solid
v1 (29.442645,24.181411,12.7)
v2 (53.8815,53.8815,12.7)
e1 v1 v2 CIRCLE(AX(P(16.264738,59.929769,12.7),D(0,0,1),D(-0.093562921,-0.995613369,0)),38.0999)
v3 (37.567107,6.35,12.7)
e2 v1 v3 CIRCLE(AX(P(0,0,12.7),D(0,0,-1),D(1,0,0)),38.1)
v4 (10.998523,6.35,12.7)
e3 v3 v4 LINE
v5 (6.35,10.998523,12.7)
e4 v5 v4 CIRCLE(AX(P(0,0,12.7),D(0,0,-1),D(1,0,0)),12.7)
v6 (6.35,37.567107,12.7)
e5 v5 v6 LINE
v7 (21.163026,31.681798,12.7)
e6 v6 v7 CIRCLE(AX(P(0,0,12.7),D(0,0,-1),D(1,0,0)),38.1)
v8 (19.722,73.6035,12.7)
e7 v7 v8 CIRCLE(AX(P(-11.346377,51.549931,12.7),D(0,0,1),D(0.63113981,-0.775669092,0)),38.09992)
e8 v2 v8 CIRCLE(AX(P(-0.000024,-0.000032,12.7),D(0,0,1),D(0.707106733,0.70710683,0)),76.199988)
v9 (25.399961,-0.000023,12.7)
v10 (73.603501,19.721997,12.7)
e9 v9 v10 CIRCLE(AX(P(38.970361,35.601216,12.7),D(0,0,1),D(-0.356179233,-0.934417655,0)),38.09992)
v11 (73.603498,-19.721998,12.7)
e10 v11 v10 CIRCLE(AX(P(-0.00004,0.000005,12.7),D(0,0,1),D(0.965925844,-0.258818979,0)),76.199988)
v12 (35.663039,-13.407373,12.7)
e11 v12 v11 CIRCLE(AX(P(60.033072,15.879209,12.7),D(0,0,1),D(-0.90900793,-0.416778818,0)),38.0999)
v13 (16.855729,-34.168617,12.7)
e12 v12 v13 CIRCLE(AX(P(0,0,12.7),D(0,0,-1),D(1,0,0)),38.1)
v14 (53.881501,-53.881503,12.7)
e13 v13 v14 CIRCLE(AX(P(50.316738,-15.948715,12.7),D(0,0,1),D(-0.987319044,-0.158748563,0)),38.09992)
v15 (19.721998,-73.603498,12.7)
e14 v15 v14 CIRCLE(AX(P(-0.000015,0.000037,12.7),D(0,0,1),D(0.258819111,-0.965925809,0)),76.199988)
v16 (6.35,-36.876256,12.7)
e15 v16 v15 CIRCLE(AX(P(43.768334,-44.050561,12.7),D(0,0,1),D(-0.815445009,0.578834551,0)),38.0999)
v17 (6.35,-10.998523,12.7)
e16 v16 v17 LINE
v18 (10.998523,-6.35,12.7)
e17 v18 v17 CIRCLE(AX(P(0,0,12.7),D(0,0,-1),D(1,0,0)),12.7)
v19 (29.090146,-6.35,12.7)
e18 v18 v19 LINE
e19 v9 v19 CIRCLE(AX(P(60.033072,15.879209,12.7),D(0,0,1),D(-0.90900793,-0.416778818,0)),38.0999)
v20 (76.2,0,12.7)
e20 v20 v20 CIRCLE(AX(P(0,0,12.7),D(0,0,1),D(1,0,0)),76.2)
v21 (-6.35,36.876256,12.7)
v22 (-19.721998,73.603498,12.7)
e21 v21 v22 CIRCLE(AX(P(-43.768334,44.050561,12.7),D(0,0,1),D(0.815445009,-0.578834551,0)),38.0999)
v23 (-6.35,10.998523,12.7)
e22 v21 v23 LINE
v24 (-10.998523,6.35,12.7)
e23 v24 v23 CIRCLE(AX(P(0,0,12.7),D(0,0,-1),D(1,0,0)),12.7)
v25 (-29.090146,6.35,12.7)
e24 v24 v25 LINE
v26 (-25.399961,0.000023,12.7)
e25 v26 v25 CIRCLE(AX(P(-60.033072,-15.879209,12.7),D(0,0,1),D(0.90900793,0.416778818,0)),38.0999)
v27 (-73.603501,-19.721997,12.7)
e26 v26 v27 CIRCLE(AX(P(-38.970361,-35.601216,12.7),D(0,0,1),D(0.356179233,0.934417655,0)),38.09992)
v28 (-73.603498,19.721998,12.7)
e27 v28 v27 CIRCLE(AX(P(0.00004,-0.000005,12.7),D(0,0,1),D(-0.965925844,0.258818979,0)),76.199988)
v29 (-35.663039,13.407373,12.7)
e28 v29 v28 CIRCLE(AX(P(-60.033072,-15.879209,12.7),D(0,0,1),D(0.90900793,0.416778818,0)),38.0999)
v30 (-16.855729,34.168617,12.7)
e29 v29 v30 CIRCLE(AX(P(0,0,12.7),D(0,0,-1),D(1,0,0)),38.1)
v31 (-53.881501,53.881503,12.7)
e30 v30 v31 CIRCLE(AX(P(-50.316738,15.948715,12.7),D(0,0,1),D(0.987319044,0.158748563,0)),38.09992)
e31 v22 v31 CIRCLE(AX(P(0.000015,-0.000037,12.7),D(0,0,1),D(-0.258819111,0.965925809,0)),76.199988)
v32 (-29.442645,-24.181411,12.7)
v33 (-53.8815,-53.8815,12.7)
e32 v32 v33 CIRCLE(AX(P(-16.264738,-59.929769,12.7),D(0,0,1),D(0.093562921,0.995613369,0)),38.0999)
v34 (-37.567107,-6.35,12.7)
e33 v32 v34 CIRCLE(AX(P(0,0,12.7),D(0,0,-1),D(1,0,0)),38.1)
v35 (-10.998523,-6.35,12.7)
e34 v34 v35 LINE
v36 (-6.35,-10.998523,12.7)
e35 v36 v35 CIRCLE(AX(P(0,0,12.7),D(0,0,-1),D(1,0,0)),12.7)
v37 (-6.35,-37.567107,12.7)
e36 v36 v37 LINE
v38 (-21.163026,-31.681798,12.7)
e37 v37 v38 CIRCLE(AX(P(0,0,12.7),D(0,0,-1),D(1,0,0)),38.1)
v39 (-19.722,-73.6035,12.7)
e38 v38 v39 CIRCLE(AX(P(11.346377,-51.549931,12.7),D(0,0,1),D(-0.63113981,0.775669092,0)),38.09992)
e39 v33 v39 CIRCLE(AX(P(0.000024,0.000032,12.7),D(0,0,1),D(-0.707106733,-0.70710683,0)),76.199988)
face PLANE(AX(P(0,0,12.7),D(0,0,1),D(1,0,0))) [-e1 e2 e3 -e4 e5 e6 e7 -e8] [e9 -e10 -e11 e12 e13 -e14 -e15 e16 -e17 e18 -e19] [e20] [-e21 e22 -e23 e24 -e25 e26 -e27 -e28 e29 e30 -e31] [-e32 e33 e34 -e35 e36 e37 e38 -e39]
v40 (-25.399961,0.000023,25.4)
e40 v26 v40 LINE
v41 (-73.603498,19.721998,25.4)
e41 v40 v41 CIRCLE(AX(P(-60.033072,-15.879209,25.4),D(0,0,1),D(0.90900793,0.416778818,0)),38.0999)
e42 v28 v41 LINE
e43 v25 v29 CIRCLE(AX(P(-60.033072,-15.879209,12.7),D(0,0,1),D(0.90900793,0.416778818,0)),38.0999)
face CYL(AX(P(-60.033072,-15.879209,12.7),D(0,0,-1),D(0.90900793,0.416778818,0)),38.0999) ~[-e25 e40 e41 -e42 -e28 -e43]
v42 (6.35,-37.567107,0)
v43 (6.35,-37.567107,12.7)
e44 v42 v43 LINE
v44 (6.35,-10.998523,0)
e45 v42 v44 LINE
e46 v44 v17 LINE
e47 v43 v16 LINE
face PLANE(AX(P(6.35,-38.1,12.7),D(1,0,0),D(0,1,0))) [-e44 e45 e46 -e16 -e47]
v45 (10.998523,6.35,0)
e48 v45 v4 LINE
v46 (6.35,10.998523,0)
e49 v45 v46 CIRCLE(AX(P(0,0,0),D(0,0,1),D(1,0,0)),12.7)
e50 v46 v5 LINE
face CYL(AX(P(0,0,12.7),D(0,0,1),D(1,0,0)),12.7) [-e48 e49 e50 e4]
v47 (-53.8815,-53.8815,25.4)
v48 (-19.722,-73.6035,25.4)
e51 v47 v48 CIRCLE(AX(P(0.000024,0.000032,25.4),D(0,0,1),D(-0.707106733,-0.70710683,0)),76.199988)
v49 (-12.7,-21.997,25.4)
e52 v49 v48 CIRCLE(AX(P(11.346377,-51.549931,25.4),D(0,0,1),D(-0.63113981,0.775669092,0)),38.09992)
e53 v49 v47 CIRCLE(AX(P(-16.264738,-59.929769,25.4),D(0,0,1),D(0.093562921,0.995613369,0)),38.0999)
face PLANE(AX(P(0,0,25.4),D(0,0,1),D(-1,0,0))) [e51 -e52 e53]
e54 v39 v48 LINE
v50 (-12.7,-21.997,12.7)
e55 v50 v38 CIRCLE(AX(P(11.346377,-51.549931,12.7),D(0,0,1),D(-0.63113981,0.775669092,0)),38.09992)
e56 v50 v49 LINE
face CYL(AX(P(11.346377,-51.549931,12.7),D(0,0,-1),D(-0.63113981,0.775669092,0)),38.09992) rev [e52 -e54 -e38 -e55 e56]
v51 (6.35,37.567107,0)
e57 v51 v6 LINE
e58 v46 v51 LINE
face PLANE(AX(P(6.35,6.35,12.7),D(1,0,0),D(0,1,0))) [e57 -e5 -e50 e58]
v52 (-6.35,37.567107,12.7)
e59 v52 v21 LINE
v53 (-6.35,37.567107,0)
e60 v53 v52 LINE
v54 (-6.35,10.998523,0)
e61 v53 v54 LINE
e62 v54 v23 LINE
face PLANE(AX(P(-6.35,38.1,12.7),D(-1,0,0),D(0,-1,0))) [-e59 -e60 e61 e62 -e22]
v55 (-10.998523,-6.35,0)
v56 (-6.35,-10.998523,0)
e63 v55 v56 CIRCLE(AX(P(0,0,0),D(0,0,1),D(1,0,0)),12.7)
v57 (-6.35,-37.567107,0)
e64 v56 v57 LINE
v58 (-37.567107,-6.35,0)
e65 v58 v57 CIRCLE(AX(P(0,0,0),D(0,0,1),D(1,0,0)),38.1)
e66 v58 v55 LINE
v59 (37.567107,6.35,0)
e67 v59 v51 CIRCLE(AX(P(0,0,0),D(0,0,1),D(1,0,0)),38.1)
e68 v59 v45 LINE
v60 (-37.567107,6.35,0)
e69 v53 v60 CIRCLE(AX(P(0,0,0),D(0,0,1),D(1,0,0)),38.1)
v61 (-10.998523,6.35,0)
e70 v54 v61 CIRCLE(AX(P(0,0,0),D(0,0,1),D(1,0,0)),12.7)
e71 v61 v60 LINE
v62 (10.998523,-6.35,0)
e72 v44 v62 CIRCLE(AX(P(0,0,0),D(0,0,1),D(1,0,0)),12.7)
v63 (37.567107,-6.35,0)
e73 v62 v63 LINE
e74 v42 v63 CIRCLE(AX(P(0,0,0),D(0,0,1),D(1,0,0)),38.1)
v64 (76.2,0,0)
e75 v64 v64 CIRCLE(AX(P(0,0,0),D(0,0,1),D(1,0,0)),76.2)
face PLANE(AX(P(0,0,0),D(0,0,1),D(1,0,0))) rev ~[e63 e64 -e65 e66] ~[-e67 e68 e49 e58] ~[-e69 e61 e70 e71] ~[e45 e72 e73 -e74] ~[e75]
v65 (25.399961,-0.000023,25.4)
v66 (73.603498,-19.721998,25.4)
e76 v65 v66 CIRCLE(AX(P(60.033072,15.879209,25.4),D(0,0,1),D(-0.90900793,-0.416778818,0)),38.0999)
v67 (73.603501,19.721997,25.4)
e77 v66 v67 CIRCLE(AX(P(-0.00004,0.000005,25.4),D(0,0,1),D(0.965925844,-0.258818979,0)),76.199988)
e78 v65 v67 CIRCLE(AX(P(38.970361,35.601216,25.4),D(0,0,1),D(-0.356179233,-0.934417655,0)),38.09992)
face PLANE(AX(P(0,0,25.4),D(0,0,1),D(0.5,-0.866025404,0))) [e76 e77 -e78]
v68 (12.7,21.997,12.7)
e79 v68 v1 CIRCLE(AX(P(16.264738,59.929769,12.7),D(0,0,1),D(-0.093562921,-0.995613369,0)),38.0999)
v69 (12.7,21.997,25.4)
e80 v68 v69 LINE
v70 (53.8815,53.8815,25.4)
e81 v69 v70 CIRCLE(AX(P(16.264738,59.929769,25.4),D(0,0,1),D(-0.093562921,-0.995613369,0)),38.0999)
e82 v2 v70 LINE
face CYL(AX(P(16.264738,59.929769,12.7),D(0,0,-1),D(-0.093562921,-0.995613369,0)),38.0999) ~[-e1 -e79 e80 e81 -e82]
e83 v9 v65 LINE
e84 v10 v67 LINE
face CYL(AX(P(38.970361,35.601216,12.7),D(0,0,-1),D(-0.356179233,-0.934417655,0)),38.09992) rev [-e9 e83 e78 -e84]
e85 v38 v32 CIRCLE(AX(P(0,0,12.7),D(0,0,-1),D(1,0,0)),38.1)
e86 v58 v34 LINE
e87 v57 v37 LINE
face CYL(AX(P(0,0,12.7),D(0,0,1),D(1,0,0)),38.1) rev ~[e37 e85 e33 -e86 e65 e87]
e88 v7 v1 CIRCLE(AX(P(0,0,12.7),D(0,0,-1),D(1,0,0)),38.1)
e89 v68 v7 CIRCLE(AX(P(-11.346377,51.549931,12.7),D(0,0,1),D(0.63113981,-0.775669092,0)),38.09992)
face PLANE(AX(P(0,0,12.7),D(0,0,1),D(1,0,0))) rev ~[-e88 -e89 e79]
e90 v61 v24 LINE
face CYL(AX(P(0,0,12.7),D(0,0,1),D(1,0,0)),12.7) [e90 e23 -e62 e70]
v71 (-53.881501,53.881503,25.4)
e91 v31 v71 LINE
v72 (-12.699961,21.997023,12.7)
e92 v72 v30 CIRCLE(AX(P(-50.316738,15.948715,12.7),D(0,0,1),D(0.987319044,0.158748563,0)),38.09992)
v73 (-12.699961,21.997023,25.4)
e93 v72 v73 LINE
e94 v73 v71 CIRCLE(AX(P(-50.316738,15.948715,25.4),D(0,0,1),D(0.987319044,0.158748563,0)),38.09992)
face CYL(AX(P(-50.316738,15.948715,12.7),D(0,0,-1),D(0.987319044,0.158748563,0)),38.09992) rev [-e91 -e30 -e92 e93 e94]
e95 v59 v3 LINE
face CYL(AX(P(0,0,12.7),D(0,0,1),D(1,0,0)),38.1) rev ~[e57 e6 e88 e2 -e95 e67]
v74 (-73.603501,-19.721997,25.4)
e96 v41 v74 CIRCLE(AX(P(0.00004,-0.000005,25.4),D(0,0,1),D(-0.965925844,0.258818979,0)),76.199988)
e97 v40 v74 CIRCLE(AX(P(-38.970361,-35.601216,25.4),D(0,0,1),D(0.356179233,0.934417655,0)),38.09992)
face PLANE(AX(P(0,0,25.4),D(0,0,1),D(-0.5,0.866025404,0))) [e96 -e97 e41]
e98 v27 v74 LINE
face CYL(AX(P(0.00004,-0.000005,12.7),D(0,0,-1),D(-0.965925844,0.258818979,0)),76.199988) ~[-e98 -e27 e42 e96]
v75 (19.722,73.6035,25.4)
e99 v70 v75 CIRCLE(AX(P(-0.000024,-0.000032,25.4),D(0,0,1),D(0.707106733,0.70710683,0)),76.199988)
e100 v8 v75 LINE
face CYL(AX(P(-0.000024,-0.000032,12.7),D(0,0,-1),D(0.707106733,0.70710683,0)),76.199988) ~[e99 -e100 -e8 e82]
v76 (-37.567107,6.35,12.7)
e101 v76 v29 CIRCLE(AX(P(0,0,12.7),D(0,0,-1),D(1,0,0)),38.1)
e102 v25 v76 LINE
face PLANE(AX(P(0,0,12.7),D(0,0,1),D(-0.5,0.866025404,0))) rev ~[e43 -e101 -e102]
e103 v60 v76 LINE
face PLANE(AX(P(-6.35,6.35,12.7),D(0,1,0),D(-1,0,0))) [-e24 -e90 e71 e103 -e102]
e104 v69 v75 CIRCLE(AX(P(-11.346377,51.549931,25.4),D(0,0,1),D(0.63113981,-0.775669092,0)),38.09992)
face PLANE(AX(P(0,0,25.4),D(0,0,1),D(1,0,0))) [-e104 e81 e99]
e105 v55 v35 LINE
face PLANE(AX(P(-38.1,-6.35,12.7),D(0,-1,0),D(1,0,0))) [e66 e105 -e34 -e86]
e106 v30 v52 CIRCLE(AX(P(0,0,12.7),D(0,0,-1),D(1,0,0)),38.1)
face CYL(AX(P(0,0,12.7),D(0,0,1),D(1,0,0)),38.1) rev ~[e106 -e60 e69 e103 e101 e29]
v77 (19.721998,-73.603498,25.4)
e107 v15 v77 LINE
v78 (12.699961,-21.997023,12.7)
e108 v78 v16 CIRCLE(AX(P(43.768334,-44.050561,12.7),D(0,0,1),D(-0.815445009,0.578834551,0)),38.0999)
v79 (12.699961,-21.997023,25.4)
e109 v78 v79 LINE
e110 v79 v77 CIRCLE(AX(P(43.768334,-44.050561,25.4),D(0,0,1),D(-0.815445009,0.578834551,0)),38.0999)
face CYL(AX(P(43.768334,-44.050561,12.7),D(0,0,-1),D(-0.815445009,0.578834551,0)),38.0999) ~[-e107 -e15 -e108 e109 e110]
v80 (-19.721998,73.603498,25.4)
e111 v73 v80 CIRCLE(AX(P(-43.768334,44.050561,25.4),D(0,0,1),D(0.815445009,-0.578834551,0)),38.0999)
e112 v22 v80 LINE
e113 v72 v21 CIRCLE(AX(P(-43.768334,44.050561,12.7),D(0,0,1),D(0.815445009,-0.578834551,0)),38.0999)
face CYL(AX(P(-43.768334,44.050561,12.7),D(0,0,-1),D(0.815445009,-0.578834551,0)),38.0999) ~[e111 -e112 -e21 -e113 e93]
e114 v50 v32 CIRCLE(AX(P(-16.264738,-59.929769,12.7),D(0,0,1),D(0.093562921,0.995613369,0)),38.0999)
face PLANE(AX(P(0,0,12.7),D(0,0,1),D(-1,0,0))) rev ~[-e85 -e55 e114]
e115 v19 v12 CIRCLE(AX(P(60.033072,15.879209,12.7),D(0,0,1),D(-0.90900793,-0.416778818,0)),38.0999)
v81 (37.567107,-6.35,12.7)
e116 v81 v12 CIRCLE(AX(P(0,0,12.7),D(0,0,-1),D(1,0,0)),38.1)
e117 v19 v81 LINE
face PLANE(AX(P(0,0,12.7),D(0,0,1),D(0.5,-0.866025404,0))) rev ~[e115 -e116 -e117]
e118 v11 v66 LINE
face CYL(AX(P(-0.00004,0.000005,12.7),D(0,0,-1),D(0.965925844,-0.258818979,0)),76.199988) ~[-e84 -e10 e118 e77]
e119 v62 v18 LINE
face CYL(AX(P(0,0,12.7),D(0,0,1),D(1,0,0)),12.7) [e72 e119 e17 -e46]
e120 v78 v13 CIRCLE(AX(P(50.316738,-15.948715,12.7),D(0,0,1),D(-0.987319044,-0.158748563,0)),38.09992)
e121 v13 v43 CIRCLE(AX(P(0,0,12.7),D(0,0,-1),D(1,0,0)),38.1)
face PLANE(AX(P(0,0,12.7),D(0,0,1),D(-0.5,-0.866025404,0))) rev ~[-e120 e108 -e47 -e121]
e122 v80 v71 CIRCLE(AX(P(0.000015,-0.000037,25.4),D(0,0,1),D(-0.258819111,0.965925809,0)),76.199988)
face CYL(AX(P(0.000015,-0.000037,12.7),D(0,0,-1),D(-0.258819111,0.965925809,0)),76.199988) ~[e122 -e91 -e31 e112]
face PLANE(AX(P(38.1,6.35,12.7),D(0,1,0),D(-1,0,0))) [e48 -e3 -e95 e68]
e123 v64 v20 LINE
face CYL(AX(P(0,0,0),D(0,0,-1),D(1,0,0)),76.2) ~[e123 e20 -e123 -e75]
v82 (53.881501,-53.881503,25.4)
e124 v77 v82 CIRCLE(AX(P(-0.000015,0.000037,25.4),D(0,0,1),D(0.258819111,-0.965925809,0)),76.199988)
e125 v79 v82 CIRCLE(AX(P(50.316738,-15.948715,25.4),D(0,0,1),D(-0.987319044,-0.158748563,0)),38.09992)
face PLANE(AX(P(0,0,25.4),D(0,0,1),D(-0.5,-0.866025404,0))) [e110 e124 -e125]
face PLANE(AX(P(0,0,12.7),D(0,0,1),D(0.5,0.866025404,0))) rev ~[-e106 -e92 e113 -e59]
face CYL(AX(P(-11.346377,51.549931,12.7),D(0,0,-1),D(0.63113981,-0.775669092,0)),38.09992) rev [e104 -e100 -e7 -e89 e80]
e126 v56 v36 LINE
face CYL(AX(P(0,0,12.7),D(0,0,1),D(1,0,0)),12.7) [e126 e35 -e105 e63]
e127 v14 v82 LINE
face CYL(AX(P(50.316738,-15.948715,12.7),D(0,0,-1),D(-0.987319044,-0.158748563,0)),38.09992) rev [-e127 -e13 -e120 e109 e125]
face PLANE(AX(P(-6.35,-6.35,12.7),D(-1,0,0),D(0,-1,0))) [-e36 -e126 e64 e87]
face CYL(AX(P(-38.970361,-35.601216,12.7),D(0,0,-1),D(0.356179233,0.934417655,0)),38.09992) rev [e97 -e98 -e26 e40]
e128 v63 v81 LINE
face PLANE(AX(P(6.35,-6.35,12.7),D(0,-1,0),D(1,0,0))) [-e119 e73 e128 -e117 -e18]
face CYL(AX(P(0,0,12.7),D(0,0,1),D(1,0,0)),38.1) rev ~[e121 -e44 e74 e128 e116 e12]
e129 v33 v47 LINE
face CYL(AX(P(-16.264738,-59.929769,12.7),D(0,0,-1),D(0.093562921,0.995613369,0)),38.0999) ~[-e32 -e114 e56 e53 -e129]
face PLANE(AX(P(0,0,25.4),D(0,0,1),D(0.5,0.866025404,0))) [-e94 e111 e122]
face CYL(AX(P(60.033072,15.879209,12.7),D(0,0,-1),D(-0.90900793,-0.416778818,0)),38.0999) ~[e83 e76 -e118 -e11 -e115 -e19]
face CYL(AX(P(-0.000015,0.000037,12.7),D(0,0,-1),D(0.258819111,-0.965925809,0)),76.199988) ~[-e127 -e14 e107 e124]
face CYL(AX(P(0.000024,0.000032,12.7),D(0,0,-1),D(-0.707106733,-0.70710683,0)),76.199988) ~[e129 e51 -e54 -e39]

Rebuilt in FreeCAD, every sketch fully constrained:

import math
import FreeCAD as App
import Part
import Sketcher
Q = App.Units.Quantity

doc = App.newDocument("Part")
body = doc.addObject("PartDesign::Body", "Body")
body.AllowCompound = True

sketch1 = body.newObject("Sketcher::SketchObject", "Sketch")
sketch1.AttachmentSupport = (doc.getObject("XY_Plane"), [""])
sketch1.MapMode = "FlatFace"
sketch1.addGeometry(Part.Circle(App.Vector(0, 0, 0), App.Vector(0, 0, 1), 76), False)
sketch1.addConstraint([
    Sketcher.Constraint("Coincident", 0, 3, -1, 1),
    Sketcher.Constraint("Diameter", 0, Q("6 in")),
])
pad1 = body.newObject("PartDesign::Pad", "Pad")
pad1.Profile = sketch1
pad1.Length = Q("0.5 in")

sketch2 = body.newObject("Sketcher::SketchObject", "Sketch001")
sketch2.AttachmentSupport = (doc.getObject("XY_Plane"), [""])
sketch2.MapMode = "FlatFace"
sketch2.AttachmentOffset = App.Placement(App.Vector(0, 0, 0.5 * 25.4), App.Rotation())
sketch2.addGeometry([
    Part.Circle(App.Vector(0, 0, 0), App.Vector(0, 0, 1), 38),
    Part.Circle(App.Vector(0, 0, 0), App.Vector(0, 0, 1), 13),
], False)
sketch2.addConstraint([
    Sketcher.Constraint("Coincident", 0, 3, -1, 1),
    Sketcher.Constraint("Coincident", 1, 3, -1, 1),
    Sketcher.Constraint("Diameter", 0, Q("3 in")),
    Sketcher.Constraint("Diameter", 1, Q("1 in")),
])
pocket1 = body.newObject("PartDesign::Pocket", "Pocket")
pocket1.Profile = sketch2
pocket1.Length = Q("0.5 in")

sketch3 = body.newObject("Sketcher::SketchObject", "Sketch002")
sketch3.AttachmentSupport = (doc.getObject("XY_Plane"), [""])
sketch3.MapMode = "FlatFace"
sketch3.AttachmentOffset = App.Placement(App.Vector(0, 0, 0.5 * 25.4), App.Rotation())
sketch3.addGeometry([
    Part.ArcOfCircle(Part.Circle(App.Vector(-38, 0, 0), App.Vector(0, 0, 1), 6), math.radians(90), math.radians(270)),
    Part.LineSegment(App.Vector(-38, -6, 0), App.Vector(-6, -6, 0)),
    Part.LineSegment(App.Vector(-6, -6, 0), App.Vector(-6, -38, 0)),
    Part.ArcOfCircle(Part.Circle(App.Vector(0, -38, 0), App.Vector(0, 0, 1), 6), math.radians(180), math.radians(360)),
    Part.LineSegment(App.Vector(6, -38, 0), App.Vector(6, -6, 0)),
    Part.LineSegment(App.Vector(6, -6, 0), App.Vector(38, -6, 0)),
    Part.ArcOfCircle(Part.Circle(App.Vector(38, 0, 0), App.Vector(0, 0, 1), 6), math.radians(-90), math.radians(90)),
    Part.LineSegment(App.Vector(38, 6, 0), App.Vector(6, 6, 0)),
    Part.LineSegment(App.Vector(6, 6, 0), App.Vector(6, 38, 0)),
    Part.ArcOfCircle(Part.Circle(App.Vector(0, 38, 0), App.Vector(0, 0, 1), 6), math.radians(0), math.radians(180)),
    Part.LineSegment(App.Vector(-6, 38, 0), App.Vector(-6, 6, 0)),
    Part.LineSegment(App.Vector(-6, 6, 0), App.Vector(-38, 6, 0)),
], False)
sketch3.addConstraint([
    Sketcher.Constraint("Tangent", 0, 2, 1, 1),
    Sketcher.Constraint("Coincident", 1, 2, 2, 1),
    Sketcher.Constraint("Tangent", 2, 2, 3, 1),
    Sketcher.Constraint("Tangent", 3, 2, 4, 1),
    Sketcher.Constraint("Coincident", 4, 2, 5, 1),
    Sketcher.Constraint("Tangent", 5, 2, 6, 1),
    Sketcher.Constraint("Tangent", 6, 2, 7, 1),
    Sketcher.Constraint("Coincident", 7, 2, 8, 1),
    Sketcher.Constraint("Tangent", 8, 2, 9, 1),
    Sketcher.Constraint("Tangent", 9, 2, 10, 1),
    Sketcher.Constraint("Coincident", 10, 2, 11, 1),
    Sketcher.Constraint("Tangent", 11, 2, 0, 1),
    Sketcher.Constraint("Horizontal", 1),
    Sketcher.Constraint("Vertical", 2),
    Sketcher.Constraint("Vertical", 4),
    Sketcher.Constraint("Horizontal", 5),
    Sketcher.Constraint("Horizontal", 7),
    Sketcher.Constraint("Vertical", 8),
    Sketcher.Constraint("Vertical", 10),
    Sketcher.Constraint("Horizontal", 11),
    Sketcher.Constraint("Equal", 0, 3),
    Sketcher.Constraint("Equal", 3, 6),
    Sketcher.Constraint("Equal", 6, 9),
    Sketcher.Constraint("Symmetric", 0, 3, 6, 3, -1, 1),
    Sketcher.Constraint("Symmetric", 3, 3, 9, 3, -1, 1),
    Sketcher.Constraint("Symmetric", 1, 2, 4, 2, -2),
    Sketcher.Constraint("Equal", 11, 2),
    Sketcher.Constraint("Radius", 0, Q("0.25 in")),
    Sketcher.Constraint("DistanceX", 0, 3, -1, 1, Q("1.5 in")),
])
pad2 = body.newObject("PartDesign::Pad", "Pad001")
pad2.Profile = sketch3
pad2.Length = Q("0.5 in")
pad2.Reversed = True

sketch4 = body.newObject("Sketcher::SketchObject", "Sketch003")
sketch4.AttachmentSupport = (doc.getObject("XY_Plane"), [""])
sketch4.MapMode = "FlatFace"
sketch4.AttachmentOffset = App.Placement(App.Vector(0, 0, 0.5 * 25.4), App.Rotation())
sketch4.addGeometry([
    Part.ArcOfCircle(Part.Circle(App.Vector(16, 60, 0), App.Vector(0, 0, 1), 38), math.radians(-95), math.radians(-9)),
    Part.ArcOfCircle(Part.Circle(App.Vector(0, 0, 0), App.Vector(0, 0, 1), 76), math.radians(45), math.radians(75)),
    Part.ArcOfCircle(Part.Circle(App.Vector(-11, 52, 0), App.Vector(0, 0, 1), 38), math.radians(-51), math.radians(35)),
], False)
sketch4.addConstraint([
    Sketcher.Constraint("Coincident", 0, 2, 1, 1),
    Sketcher.Constraint("Coincident", 1, 2, 2, 2),
    Sketcher.Constraint("Coincident", 2, 1, 0, 1),
    Sketcher.Constraint("Coincident", 1, 3, -1, 1),
    Sketcher.Constraint("Equal", 0, 2),
    Sketcher.Constraint("Radius", 0, Q("1.5 in")),
    Sketcher.Constraint("Radius", 1, Q("3 in")),
    Sketcher.Constraint("DistanceX", -1, 1, 2, 1, Q("0.5 in")),
    Sketcher.Constraint("DistanceY", 2, 3, 0, 2, Q("0.0918 in")),
    Sketcher.Constraint("DistanceY", 2, 1, 2, 3, Q("1.1635 in")),
    Sketcher.Constraint("DistanceX", -1, 1, 0, 3, 16.2647),
])
pad3 = body.newObject("PartDesign::Pad", "Pad002")
pad3.Profile = sketch4
pad3.Length = Q("0.5 in")
doc.recompute()

polarpattern = body.newObject("PartDesign::PolarPattern", "PolarPattern")
polarpattern.Originals = [pad3]
polarpattern.Axis = (doc.getObject("Z_Axis"), [""])
polarpattern.Angle = 360
polarpattern.Occurrences = 6
body.Tip = polarpattern

doc.recompute()
